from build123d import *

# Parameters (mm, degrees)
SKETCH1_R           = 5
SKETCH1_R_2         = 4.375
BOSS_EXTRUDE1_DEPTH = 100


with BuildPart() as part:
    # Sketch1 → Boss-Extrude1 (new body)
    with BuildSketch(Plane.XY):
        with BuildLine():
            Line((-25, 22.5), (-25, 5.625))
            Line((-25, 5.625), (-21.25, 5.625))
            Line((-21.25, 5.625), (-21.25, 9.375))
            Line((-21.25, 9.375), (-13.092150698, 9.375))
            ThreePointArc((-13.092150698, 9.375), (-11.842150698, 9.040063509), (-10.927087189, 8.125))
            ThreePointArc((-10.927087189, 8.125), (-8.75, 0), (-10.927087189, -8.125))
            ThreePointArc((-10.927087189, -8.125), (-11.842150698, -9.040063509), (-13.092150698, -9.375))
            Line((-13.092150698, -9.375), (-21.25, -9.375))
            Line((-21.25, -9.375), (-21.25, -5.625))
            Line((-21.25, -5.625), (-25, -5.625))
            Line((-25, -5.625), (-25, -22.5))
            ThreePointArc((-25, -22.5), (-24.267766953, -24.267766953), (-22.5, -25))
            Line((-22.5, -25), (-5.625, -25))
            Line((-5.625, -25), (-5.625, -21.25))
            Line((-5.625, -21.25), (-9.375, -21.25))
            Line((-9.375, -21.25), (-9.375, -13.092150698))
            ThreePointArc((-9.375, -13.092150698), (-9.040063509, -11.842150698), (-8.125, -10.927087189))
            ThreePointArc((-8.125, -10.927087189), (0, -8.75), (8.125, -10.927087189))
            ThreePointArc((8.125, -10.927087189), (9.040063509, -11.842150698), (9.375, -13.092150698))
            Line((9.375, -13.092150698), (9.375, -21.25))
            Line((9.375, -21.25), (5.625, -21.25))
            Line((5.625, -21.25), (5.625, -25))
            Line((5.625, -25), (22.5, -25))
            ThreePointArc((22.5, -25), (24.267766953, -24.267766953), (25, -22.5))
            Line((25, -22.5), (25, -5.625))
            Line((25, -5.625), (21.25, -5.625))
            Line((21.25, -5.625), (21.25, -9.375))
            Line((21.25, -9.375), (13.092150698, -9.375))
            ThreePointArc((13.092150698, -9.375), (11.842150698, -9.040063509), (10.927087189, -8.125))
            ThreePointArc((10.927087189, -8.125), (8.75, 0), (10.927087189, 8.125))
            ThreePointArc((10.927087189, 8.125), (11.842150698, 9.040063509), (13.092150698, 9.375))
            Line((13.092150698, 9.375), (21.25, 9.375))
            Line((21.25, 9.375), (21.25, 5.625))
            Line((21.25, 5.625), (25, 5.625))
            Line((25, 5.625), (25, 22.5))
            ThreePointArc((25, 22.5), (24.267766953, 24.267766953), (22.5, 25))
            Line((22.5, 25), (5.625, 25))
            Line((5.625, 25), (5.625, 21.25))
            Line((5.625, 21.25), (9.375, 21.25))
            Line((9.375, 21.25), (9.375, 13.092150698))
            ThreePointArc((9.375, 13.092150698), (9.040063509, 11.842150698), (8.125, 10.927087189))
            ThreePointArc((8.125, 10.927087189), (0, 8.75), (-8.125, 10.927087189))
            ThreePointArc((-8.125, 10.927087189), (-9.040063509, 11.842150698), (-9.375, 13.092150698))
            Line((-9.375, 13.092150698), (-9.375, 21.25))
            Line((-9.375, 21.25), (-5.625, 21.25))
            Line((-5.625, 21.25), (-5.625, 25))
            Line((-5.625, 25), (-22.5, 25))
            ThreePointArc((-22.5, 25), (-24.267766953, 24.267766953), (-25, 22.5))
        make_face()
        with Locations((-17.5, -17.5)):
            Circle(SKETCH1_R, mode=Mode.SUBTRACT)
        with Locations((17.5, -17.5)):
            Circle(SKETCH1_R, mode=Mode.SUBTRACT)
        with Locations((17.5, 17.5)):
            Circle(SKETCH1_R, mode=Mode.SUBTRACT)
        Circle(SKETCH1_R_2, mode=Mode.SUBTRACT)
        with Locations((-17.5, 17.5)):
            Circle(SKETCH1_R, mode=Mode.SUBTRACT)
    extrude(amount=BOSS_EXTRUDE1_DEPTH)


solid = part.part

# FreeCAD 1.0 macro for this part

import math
import FreeCAD as App
import Part
import Sketcher
Q = App.Units.Quantity

doc = App.newDocument("Part")
body = doc.addObject("PartDesign::Body", "Body")

# Sketch on XY plane
sketch1 = doc.addObject("Sketcher::SketchObject", "Sketch")
body.addObject(sketch1)
sketch1.AttachmentSupport = (doc.XY_Plane, [""])
sketch1.MapMode = "FlatFace"
sketch1.addGeometry([
    Part.LineSegment(App.Vector(-25, 22.5, 0), App.Vector(-25, 5.625, 0)),  # 0
    Part.LineSegment(App.Vector(-25, 5.625, 0), App.Vector(-21.25, 5.625, 0)),  # 1
    Part.LineSegment(App.Vector(-21.25, 5.625, 0), App.Vector(-21.25, 9.375, 0)),  # 2
    Part.LineSegment(App.Vector(-21.25, 9.375, 0), App.Vector(-13.092151, 9.375, 0)),  # 3
    Part.ArcOfCircle(Part.Circle(App.Vector(-13.092151, 6.875, 0), App.Vector(0, 0, 1), 2.5), math.radians(30), math.radians(90)),  # 4
    Part.ArcOfCircle(Part.Circle(App.Vector(-25, 0, 0), App.Vector(0, 0, 1), 16.25), math.radians(-30), math.radians(30)),  # 5
    Part.ArcOfCircle(Part.Circle(App.Vector(-13.092151, -6.875, 0), App.Vector(0, 0, 1), 2.5), math.radians(-90), math.radians(-30)),  # 6
    Part.LineSegment(App.Vector(-13.092151, -9.375, 0), App.Vector(-21.25, -9.375, 0)),  # 7
    Part.LineSegment(App.Vector(-21.25, -9.375, 0), App.Vector(-21.25, -5.625, 0)),  # 8
    Part.LineSegment(App.Vector(-21.25, -5.625, 0), App.Vector(-25, -5.625, 0)),  # 9
    Part.LineSegment(App.Vector(-25, -5.625, 0), App.Vector(-25, -22.5, 0)),  # 10
    Part.ArcOfCircle(Part.Circle(App.Vector(-22.5, -22.5, 0), App.Vector(0, 0, 1), 2.5), math.radians(180), math.radians(270)),  # 11
    Part.LineSegment(App.Vector(-22.5, -25, 0), App.Vector(-5.625, -25, 0)),  # 12
    Part.LineSegment(App.Vector(-5.625, -25, 0), App.Vector(-5.625, -21.25, 0)),  # 13
    Part.LineSegment(App.Vector(-5.625, -21.25, 0), App.Vector(-9.375, -21.25, 0)),  # 14
    Part.LineSegment(App.Vector(-9.375, -21.25, 0), App.Vector(-9.375, -13.092151, 0)),  # 15
    Part.ArcOfCircle(Part.Circle(App.Vector(-6.875, -13.092151, 0), App.Vector(0, 0, 1), 2.5), math.radians(120), math.radians(180)),  # 16
    Part.ArcOfCircle(Part.Circle(App.Vector(0, -25, 0), App.Vector(0, 0, 1), 16.25), math.radians(60), math.radians(120)),  # 17
    Part.ArcOfCircle(Part.Circle(App.Vector(6.875, -13.092151, 0), App.Vector(0, 0, 1), 2.5), math.radians(0), math.radians(60)),  # 18
    Part.LineSegment(App.Vector(9.375, -13.092151, 0), App.Vector(9.375, -21.25, 0)),  # 19
    Part.LineSegment(App.Vector(9.375, -21.25, 0), App.Vector(5.625, -21.25, 0)),  # 20
    Part.LineSegment(App.Vector(5.625, -21.25, 0), App.Vector(5.625, -25, 0)),  # 21
    Part.LineSegment(App.Vector(5.625, -25, 0), App.Vector(22.5, -25, 0)),  # 22
    Part.ArcOfCircle(Part.Circle(App.Vector(22.5, -22.5, 0), App.Vector(0, 0, 1), 2.5), math.radians(-90), math.radians(0)),  # 23
    Part.LineSegment(App.Vector(25, -22.5, 0), App.Vector(25, -5.625, 0)),  # 24
    Part.LineSegment(App.Vector(25, -5.625, 0), App.Vector(21.25, -5.625, 0)),  # 25
    Part.LineSegment(App.Vector(21.25, -5.625, 0), App.Vector(21.25, -9.375, 0)),  # 26
    Part.LineSegment(App.Vector(21.25, -9.375, 0), App.Vector(13.092151, -9.375, 0)),  # 27
    Part.ArcOfCircle(Part.Circle(App.Vector(13.092151, -6.875, 0), App.Vector(0, 0, 1), 2.5), math.radians(-150), math.radians(-90)),  # 28
    Part.ArcOfCircle(Part.Circle(App.Vector(25, 0, 0), App.Vector(0, 0, 1), 16.25), math.radians(150), math.radians(210)),  # 29
    Part.ArcOfCircle(Part.Circle(App.Vector(13.092151, 6.875, 0), App.Vector(0, 0, 1), 2.5), math.radians(90), math.radians(150)),  # 30
    Part.LineSegment(App.Vector(13.092151, 9.375, 0), App.Vector(21.25, 9.375, 0)),  # 31
    Part.LineSegment(App.Vector(21.25, 9.375, 0), App.Vector(21.25, 5.625, 0)),  # 32
    Part.LineSegment(App.Vector(21.25, 5.625, 0), App.Vector(25, 5.625, 0)),  # 33
    Part.LineSegment(App.Vector(25, 5.625, 0), App.Vector(25, 22.5, 0)),  # 34
    Part.ArcOfCircle(Part.Circle(App.Vector(22.5, 22.5, 0), App.Vector(0, 0, 1), 2.5), math.radians(0), math.radians(90)),  # 35
    Part.LineSegment(App.Vector(22.5, 25, 0), App.Vector(5.625, 25, 0)),  # 36
    Part.LineSegment(App.Vector(5.625, 25, 0), App.Vector(5.625, 21.25, 0)),  # 37
    Part.LineSegment(App.Vector(5.625, 21.25, 0), App.Vector(9.375, 21.25, 0)),  # 38
    Part.LineSegment(App.Vector(9.375, 21.25, 0), App.Vector(9.375, 13.092151, 0)),  # 39
    Part.ArcOfCircle(Part.Circle(App.Vector(6.875, 13.092151, 0), App.Vector(0, 0, 1), 2.5), math.radians(-60), math.radians(0)),  # 40
    Part.ArcOfCircle(Part.Circle(App.Vector(0, 25, 0), App.Vector(0, 0, 1), 16.25), math.radians(-120), math.radians(-60)),  # 41
    Part.ArcOfCircle(Part.Circle(App.Vector(-6.875, 13.092151, 0), App.Vector(0, 0, 1), 2.5), math.radians(-180), math.radians(-120)),  # 42
    Part.LineSegment(App.Vector(-9.375, 13.092151, 0), App.Vector(-9.375, 21.25, 0)),  # 43
    Part.LineSegment(App.Vector(-9.375, 21.25, 0), App.Vector(-5.625, 21.25, 0)),  # 44
    Part.LineSegment(App.Vector(-5.625, 21.25, 0), App.Vector(-5.625, 25, 0)),  # 45
    Part.LineSegment(App.Vector(-5.625, 25, 0), App.Vector(-22.5, 25, 0)),  # 46
    Part.ArcOfCircle(Part.Circle(App.Vector(-22.5, 22.5, 0), App.Vector(0, 0, 1), 2.5), math.radians(90), math.radians(180)),  # 47
    Part.Circle(App.Vector(-17.5, -17.5, 0), App.Vector(0, 0, 1), 5),  # 48
    Part.Circle(App.Vector(17.5, -17.5, 0), App.Vector(0, 0, 1), 5),  # 49
    Part.Circle(App.Vector(-17.5, 17.5, 0), App.Vector(0, 0, 1), 5),  # 50
    Part.Circle(App.Vector(0, 0, 0), App.Vector(0, 0, 1), 4.375),  # 51
    Part.Circle(App.Vector(17.5, 17.5, 0), App.Vector(0, 0, 1), 5),  # 52
], False)
sketch1.addConstraint([
    Sketcher.Constraint("Coincident", 0, 2, 1, 1),
    Sketcher.Constraint("Coincident", 1, 2, 2, 1),
    Sketcher.Constraint("Coincident", 2, 2, 3, 1),
    Sketcher.Constraint("Tangent", 3, 2, 4, 2),
    Sketcher.Constraint("Tangent", 4, 1, 5, 2),
    Sketcher.Constraint("Tangent", 5, 1, 6, 2),
    Sketcher.Constraint("Tangent", 6, 1, 7, 1),
    Sketcher.Constraint("Coincident", 7, 2, 8, 1),
    Sketcher.Constraint("Coincident", 8, 2, 9, 1),
    Sketcher.Constraint("Coincident", 9, 2, 10, 1),
    Sketcher.Constraint("Tangent", 10, 2, 11, 1),
    Sketcher.Constraint("Tangent", 11, 2, 12, 1),
    Sketcher.Constraint("Coincident", 12, 2, 13, 1),
    Sketcher.Constraint("Coincident", 13, 2, 14, 1),
    Sketcher.Constraint("Coincident", 14, 2, 15, 1),
    Sketcher.Constraint("Tangent", 15, 2, 16, 2),
    Sketcher.Constraint("Tangent", 16, 1, 17, 2),
    Sketcher.Constraint("Tangent", 17, 1, 18, 2),
    Sketcher.Constraint("Tangent", 18, 1, 19, 1),
    Sketcher.Constraint("Coincident", 19, 2, 20, 1),
    Sketcher.Constraint("Coincident", 20, 2, 21, 1),
    Sketcher.Constraint("Coincident", 21, 2, 22, 1),
    Sketcher.Constraint("Tangent", 22, 2, 23, 1),
    Sketcher.Constraint("Tangent", 23, 2, 24, 1),
    Sketcher.Constraint("Coincident", 24, 2, 25, 1),
    Sketcher.Constraint("Coincident", 25, 2, 26, 1),
    Sketcher.Constraint("Coincident", 26, 2, 27, 1),
    Sketcher.Constraint("Tangent", 27, 2, 28, 2),
    Sketcher.Constraint("Tangent", 28, 1, 29, 2),
    Sketcher.Constraint("Tangent", 29, 1, 30, 2),
    Sketcher.Constraint("Tangent", 30, 1, 31, 1),
    Sketcher.Constraint("Coincident", 31, 2, 32, 1),
    Sketcher.Constraint("Coincident", 32, 2, 33, 1),
    Sketcher.Constraint("Coincident", 33, 2, 34, 1),
    Sketcher.Constraint("Tangent", 34, 2, 35, 1),
    Sketcher.Constraint("Tangent", 35, 2, 36, 1),
    Sketcher.Constraint("Coincident", 36, 2, 37, 1),
    Sketcher.Constraint("Coincident", 37, 2, 38, 1),
    Sketcher.Constraint("Coincident", 38, 2, 39, 1),
    Sketcher.Constraint("Tangent", 39, 2, 40, 2),
    Sketcher.Constraint("Tangent", 40, 1, 41, 2),
    Sketcher.Constraint("Tangent", 41, 1, 42, 2),
    Sketcher.Constraint("Tangent", 42, 1, 43, 1),
    Sketcher.Constraint("Coincident", 43, 2, 44, 1),
    Sketcher.Constraint("Coincident", 44, 2, 45, 1),
    Sketcher.Constraint("Coincident", 45, 2, 46, 1),
    Sketcher.Constraint("Tangent", 46, 2, 47, 1),
    Sketcher.Constraint("Tangent", 47, 2, 0, 1),
    Sketcher.Constraint("Vertical", 0),
    Sketcher.Constraint("Horizontal", 1),
    Sketcher.Constraint("Vertical", 2),
    Sketcher.Constraint("Horizontal", 3),
    Sketcher.Constraint("Horizontal", 7),
    Sketcher.Constraint("Vertical", 8),
    Sketcher.Constraint("Horizontal", 9),
    Sketcher.Constraint("Vertical", 10),
    Sketcher.Constraint("Horizontal", 12),
    Sketcher.Constraint("Vertical", 13),
    Sketcher.Constraint("Horizontal", 14),
    Sketcher.Constraint("Vertical", 15),
    Sketcher.Constraint("Vertical", 19),
    Sketcher.Constraint("Horizontal", 20),
    Sketcher.Constraint("Vertical", 21),
    Sketcher.Constraint("Horizontal", 22),
    Sketcher.Constraint("Vertical", 24),
    Sketcher.Constraint("Horizontal", 25),
    Sketcher.Constraint("Vertical", 26),
    Sketcher.Constraint("Horizontal", 27),
    Sketcher.Constraint("Horizontal", 31),
    Sketcher.Constraint("Vertical", 32),
    Sketcher.Constraint("Horizontal", 33),
    Sketcher.Constraint("Vertical", 34),
    Sketcher.Constraint("Horizontal", 36),
    Sketcher.Constraint("Vertical", 37),
    Sketcher.Constraint("Horizontal", 38),
    Sketcher.Constraint("Vertical", 39),
    Sketcher.Constraint("Vertical", 43),
    Sketcher.Constraint("Horizontal", 44),
    Sketcher.Constraint("Vertical", 45),
    Sketcher.Constraint("Horizontal", 46),
    Sketcher.Constraint("Coincident", 51, 3, -1, 1),
    Sketcher.Constraint("Equal", 4, 6),
    Sketcher.Constraint("Equal", 6, 11),
    Sketcher.Constraint("Equal", 11, 16),
    Sketcher.Constraint("Equal", 5, 17),
    Sketcher.Constraint("Equal", 16, 18),
    Sketcher.Constraint("Equal", 18, 23),
    Sketcher.Constraint("Equal", 23, 28),
    Sketcher.Constraint("Equal", 17, 29),
    Sketcher.Constraint("Equal", 28, 30),
    Sketcher.Constraint("Equal", 30, 35),
    Sketcher.Constraint("Equal", 35, 40),
    Sketcher.Constraint("Equal", 29, 41),
    Sketcher.Constraint("Equal", 40, 42),
    Sketcher.Constraint("Equal", 42, 47),
    Sketcher.Constraint("Equal", 48, 49),
    Sketcher.Constraint("Equal", 49, 50),
    Sketcher.Constraint("Equal", 50, 52),
    Sketcher.Constraint("Symmetric", 4, 3, 28, 3, -1, 1),
    Sketcher.Constraint("Symmetric", 6, 3, 30, 3, -1, 1),
    Sketcher.Constraint("Symmetric", 11, 3, 35, 3, -1, 1),
    Sketcher.Constraint("Symmetric", 16, 3, 40, 3, -1, 1),
    Sketcher.Constraint("Symmetric", 18, 3, 42, 3, -1, 1),
    Sketcher.Constraint("Symmetric", 23, 3, 47, 3, -1, 1),
    Sketcher.Constraint("Symmetric", 49, 3, 50, 3, -1, 1),
    Sketcher.Constraint("Symmetric", 48, 3, 52, 3, -1, 1),
    Sketcher.Constraint("Symmetric", 1, 2, 25, 2, -1, 1),
    Sketcher.Constraint("Symmetric", 8, 2, 32, 2, -1, 1),
    Sketcher.Constraint("Symmetric", 13, 2, 37, 2, -1, 1),
    Sketcher.Constraint("Symmetric", 20, 2, 44, 2, -1, 1),
    Sketcher.Constraint("Symmetric", 16, 3, 18, 3, -2),
    Sketcher.Constraint("Symmetric", 11, 3, 23, 3, -2),
    Sketcher.Constraint("Symmetric", 6, 3, 28, 3, -2),
    Sketcher.Constraint("Symmetric", 48, 3, 49, 3, -2),
    Sketcher.Constraint("Symmetric", 13, 2, 20, 2, -2),
    Sketcher.Constraint("Symmetric", 8, 2, 25, 2, -2),
    Sketcher.Constraint("Horizontal", 17, 3, 11, 2),
    Sketcher.Constraint("Vertical", 5, 3, 0, 2),
    Sketcher.Constraint("Equal", 9, 14),
    Sketcher.Constraint("Equal", 46, 0),
    Sketcher.Constraint("Equal", 44, 2),
    Sketcher.Constraint("Equal", 8, 13),
    Sketcher.Constraint("Equal", 31, 15),
    Sketcher.Constraint("Diameter", 48, Q("10 mm")),
    Sketcher.Constraint("Radius", 4, Q("2.5 mm")),
    Sketcher.Constraint("Diameter", 51, Q("8.75 mm")),
    Sketcher.Constraint("Radius", 5, Q("16.25 mm")),
    Sketcher.Constraint("DistanceX", 5, 3, -1, 1, Q("25 mm")),
    Sketcher.Constraint("DistanceX", 1, 1, 1, 2, Q("3.75 mm")),
    Sketcher.Constraint("DistanceX", 48, 3, -1, 1, Q("17.5 mm")),
    Sketcher.Constraint("DistanceY", 48, 3, -1, 1, Q("17.5 mm")),
    Sketcher.Constraint("DistanceX", 12, 1, 12, 2, Q("16.875 mm")),
])
pad1 = doc.addObject("PartDesign::Pad", "Pad")
body.addObject(pad1)
pad1.Profile = sketch1
pad1.Length = 100

doc.recompute()
